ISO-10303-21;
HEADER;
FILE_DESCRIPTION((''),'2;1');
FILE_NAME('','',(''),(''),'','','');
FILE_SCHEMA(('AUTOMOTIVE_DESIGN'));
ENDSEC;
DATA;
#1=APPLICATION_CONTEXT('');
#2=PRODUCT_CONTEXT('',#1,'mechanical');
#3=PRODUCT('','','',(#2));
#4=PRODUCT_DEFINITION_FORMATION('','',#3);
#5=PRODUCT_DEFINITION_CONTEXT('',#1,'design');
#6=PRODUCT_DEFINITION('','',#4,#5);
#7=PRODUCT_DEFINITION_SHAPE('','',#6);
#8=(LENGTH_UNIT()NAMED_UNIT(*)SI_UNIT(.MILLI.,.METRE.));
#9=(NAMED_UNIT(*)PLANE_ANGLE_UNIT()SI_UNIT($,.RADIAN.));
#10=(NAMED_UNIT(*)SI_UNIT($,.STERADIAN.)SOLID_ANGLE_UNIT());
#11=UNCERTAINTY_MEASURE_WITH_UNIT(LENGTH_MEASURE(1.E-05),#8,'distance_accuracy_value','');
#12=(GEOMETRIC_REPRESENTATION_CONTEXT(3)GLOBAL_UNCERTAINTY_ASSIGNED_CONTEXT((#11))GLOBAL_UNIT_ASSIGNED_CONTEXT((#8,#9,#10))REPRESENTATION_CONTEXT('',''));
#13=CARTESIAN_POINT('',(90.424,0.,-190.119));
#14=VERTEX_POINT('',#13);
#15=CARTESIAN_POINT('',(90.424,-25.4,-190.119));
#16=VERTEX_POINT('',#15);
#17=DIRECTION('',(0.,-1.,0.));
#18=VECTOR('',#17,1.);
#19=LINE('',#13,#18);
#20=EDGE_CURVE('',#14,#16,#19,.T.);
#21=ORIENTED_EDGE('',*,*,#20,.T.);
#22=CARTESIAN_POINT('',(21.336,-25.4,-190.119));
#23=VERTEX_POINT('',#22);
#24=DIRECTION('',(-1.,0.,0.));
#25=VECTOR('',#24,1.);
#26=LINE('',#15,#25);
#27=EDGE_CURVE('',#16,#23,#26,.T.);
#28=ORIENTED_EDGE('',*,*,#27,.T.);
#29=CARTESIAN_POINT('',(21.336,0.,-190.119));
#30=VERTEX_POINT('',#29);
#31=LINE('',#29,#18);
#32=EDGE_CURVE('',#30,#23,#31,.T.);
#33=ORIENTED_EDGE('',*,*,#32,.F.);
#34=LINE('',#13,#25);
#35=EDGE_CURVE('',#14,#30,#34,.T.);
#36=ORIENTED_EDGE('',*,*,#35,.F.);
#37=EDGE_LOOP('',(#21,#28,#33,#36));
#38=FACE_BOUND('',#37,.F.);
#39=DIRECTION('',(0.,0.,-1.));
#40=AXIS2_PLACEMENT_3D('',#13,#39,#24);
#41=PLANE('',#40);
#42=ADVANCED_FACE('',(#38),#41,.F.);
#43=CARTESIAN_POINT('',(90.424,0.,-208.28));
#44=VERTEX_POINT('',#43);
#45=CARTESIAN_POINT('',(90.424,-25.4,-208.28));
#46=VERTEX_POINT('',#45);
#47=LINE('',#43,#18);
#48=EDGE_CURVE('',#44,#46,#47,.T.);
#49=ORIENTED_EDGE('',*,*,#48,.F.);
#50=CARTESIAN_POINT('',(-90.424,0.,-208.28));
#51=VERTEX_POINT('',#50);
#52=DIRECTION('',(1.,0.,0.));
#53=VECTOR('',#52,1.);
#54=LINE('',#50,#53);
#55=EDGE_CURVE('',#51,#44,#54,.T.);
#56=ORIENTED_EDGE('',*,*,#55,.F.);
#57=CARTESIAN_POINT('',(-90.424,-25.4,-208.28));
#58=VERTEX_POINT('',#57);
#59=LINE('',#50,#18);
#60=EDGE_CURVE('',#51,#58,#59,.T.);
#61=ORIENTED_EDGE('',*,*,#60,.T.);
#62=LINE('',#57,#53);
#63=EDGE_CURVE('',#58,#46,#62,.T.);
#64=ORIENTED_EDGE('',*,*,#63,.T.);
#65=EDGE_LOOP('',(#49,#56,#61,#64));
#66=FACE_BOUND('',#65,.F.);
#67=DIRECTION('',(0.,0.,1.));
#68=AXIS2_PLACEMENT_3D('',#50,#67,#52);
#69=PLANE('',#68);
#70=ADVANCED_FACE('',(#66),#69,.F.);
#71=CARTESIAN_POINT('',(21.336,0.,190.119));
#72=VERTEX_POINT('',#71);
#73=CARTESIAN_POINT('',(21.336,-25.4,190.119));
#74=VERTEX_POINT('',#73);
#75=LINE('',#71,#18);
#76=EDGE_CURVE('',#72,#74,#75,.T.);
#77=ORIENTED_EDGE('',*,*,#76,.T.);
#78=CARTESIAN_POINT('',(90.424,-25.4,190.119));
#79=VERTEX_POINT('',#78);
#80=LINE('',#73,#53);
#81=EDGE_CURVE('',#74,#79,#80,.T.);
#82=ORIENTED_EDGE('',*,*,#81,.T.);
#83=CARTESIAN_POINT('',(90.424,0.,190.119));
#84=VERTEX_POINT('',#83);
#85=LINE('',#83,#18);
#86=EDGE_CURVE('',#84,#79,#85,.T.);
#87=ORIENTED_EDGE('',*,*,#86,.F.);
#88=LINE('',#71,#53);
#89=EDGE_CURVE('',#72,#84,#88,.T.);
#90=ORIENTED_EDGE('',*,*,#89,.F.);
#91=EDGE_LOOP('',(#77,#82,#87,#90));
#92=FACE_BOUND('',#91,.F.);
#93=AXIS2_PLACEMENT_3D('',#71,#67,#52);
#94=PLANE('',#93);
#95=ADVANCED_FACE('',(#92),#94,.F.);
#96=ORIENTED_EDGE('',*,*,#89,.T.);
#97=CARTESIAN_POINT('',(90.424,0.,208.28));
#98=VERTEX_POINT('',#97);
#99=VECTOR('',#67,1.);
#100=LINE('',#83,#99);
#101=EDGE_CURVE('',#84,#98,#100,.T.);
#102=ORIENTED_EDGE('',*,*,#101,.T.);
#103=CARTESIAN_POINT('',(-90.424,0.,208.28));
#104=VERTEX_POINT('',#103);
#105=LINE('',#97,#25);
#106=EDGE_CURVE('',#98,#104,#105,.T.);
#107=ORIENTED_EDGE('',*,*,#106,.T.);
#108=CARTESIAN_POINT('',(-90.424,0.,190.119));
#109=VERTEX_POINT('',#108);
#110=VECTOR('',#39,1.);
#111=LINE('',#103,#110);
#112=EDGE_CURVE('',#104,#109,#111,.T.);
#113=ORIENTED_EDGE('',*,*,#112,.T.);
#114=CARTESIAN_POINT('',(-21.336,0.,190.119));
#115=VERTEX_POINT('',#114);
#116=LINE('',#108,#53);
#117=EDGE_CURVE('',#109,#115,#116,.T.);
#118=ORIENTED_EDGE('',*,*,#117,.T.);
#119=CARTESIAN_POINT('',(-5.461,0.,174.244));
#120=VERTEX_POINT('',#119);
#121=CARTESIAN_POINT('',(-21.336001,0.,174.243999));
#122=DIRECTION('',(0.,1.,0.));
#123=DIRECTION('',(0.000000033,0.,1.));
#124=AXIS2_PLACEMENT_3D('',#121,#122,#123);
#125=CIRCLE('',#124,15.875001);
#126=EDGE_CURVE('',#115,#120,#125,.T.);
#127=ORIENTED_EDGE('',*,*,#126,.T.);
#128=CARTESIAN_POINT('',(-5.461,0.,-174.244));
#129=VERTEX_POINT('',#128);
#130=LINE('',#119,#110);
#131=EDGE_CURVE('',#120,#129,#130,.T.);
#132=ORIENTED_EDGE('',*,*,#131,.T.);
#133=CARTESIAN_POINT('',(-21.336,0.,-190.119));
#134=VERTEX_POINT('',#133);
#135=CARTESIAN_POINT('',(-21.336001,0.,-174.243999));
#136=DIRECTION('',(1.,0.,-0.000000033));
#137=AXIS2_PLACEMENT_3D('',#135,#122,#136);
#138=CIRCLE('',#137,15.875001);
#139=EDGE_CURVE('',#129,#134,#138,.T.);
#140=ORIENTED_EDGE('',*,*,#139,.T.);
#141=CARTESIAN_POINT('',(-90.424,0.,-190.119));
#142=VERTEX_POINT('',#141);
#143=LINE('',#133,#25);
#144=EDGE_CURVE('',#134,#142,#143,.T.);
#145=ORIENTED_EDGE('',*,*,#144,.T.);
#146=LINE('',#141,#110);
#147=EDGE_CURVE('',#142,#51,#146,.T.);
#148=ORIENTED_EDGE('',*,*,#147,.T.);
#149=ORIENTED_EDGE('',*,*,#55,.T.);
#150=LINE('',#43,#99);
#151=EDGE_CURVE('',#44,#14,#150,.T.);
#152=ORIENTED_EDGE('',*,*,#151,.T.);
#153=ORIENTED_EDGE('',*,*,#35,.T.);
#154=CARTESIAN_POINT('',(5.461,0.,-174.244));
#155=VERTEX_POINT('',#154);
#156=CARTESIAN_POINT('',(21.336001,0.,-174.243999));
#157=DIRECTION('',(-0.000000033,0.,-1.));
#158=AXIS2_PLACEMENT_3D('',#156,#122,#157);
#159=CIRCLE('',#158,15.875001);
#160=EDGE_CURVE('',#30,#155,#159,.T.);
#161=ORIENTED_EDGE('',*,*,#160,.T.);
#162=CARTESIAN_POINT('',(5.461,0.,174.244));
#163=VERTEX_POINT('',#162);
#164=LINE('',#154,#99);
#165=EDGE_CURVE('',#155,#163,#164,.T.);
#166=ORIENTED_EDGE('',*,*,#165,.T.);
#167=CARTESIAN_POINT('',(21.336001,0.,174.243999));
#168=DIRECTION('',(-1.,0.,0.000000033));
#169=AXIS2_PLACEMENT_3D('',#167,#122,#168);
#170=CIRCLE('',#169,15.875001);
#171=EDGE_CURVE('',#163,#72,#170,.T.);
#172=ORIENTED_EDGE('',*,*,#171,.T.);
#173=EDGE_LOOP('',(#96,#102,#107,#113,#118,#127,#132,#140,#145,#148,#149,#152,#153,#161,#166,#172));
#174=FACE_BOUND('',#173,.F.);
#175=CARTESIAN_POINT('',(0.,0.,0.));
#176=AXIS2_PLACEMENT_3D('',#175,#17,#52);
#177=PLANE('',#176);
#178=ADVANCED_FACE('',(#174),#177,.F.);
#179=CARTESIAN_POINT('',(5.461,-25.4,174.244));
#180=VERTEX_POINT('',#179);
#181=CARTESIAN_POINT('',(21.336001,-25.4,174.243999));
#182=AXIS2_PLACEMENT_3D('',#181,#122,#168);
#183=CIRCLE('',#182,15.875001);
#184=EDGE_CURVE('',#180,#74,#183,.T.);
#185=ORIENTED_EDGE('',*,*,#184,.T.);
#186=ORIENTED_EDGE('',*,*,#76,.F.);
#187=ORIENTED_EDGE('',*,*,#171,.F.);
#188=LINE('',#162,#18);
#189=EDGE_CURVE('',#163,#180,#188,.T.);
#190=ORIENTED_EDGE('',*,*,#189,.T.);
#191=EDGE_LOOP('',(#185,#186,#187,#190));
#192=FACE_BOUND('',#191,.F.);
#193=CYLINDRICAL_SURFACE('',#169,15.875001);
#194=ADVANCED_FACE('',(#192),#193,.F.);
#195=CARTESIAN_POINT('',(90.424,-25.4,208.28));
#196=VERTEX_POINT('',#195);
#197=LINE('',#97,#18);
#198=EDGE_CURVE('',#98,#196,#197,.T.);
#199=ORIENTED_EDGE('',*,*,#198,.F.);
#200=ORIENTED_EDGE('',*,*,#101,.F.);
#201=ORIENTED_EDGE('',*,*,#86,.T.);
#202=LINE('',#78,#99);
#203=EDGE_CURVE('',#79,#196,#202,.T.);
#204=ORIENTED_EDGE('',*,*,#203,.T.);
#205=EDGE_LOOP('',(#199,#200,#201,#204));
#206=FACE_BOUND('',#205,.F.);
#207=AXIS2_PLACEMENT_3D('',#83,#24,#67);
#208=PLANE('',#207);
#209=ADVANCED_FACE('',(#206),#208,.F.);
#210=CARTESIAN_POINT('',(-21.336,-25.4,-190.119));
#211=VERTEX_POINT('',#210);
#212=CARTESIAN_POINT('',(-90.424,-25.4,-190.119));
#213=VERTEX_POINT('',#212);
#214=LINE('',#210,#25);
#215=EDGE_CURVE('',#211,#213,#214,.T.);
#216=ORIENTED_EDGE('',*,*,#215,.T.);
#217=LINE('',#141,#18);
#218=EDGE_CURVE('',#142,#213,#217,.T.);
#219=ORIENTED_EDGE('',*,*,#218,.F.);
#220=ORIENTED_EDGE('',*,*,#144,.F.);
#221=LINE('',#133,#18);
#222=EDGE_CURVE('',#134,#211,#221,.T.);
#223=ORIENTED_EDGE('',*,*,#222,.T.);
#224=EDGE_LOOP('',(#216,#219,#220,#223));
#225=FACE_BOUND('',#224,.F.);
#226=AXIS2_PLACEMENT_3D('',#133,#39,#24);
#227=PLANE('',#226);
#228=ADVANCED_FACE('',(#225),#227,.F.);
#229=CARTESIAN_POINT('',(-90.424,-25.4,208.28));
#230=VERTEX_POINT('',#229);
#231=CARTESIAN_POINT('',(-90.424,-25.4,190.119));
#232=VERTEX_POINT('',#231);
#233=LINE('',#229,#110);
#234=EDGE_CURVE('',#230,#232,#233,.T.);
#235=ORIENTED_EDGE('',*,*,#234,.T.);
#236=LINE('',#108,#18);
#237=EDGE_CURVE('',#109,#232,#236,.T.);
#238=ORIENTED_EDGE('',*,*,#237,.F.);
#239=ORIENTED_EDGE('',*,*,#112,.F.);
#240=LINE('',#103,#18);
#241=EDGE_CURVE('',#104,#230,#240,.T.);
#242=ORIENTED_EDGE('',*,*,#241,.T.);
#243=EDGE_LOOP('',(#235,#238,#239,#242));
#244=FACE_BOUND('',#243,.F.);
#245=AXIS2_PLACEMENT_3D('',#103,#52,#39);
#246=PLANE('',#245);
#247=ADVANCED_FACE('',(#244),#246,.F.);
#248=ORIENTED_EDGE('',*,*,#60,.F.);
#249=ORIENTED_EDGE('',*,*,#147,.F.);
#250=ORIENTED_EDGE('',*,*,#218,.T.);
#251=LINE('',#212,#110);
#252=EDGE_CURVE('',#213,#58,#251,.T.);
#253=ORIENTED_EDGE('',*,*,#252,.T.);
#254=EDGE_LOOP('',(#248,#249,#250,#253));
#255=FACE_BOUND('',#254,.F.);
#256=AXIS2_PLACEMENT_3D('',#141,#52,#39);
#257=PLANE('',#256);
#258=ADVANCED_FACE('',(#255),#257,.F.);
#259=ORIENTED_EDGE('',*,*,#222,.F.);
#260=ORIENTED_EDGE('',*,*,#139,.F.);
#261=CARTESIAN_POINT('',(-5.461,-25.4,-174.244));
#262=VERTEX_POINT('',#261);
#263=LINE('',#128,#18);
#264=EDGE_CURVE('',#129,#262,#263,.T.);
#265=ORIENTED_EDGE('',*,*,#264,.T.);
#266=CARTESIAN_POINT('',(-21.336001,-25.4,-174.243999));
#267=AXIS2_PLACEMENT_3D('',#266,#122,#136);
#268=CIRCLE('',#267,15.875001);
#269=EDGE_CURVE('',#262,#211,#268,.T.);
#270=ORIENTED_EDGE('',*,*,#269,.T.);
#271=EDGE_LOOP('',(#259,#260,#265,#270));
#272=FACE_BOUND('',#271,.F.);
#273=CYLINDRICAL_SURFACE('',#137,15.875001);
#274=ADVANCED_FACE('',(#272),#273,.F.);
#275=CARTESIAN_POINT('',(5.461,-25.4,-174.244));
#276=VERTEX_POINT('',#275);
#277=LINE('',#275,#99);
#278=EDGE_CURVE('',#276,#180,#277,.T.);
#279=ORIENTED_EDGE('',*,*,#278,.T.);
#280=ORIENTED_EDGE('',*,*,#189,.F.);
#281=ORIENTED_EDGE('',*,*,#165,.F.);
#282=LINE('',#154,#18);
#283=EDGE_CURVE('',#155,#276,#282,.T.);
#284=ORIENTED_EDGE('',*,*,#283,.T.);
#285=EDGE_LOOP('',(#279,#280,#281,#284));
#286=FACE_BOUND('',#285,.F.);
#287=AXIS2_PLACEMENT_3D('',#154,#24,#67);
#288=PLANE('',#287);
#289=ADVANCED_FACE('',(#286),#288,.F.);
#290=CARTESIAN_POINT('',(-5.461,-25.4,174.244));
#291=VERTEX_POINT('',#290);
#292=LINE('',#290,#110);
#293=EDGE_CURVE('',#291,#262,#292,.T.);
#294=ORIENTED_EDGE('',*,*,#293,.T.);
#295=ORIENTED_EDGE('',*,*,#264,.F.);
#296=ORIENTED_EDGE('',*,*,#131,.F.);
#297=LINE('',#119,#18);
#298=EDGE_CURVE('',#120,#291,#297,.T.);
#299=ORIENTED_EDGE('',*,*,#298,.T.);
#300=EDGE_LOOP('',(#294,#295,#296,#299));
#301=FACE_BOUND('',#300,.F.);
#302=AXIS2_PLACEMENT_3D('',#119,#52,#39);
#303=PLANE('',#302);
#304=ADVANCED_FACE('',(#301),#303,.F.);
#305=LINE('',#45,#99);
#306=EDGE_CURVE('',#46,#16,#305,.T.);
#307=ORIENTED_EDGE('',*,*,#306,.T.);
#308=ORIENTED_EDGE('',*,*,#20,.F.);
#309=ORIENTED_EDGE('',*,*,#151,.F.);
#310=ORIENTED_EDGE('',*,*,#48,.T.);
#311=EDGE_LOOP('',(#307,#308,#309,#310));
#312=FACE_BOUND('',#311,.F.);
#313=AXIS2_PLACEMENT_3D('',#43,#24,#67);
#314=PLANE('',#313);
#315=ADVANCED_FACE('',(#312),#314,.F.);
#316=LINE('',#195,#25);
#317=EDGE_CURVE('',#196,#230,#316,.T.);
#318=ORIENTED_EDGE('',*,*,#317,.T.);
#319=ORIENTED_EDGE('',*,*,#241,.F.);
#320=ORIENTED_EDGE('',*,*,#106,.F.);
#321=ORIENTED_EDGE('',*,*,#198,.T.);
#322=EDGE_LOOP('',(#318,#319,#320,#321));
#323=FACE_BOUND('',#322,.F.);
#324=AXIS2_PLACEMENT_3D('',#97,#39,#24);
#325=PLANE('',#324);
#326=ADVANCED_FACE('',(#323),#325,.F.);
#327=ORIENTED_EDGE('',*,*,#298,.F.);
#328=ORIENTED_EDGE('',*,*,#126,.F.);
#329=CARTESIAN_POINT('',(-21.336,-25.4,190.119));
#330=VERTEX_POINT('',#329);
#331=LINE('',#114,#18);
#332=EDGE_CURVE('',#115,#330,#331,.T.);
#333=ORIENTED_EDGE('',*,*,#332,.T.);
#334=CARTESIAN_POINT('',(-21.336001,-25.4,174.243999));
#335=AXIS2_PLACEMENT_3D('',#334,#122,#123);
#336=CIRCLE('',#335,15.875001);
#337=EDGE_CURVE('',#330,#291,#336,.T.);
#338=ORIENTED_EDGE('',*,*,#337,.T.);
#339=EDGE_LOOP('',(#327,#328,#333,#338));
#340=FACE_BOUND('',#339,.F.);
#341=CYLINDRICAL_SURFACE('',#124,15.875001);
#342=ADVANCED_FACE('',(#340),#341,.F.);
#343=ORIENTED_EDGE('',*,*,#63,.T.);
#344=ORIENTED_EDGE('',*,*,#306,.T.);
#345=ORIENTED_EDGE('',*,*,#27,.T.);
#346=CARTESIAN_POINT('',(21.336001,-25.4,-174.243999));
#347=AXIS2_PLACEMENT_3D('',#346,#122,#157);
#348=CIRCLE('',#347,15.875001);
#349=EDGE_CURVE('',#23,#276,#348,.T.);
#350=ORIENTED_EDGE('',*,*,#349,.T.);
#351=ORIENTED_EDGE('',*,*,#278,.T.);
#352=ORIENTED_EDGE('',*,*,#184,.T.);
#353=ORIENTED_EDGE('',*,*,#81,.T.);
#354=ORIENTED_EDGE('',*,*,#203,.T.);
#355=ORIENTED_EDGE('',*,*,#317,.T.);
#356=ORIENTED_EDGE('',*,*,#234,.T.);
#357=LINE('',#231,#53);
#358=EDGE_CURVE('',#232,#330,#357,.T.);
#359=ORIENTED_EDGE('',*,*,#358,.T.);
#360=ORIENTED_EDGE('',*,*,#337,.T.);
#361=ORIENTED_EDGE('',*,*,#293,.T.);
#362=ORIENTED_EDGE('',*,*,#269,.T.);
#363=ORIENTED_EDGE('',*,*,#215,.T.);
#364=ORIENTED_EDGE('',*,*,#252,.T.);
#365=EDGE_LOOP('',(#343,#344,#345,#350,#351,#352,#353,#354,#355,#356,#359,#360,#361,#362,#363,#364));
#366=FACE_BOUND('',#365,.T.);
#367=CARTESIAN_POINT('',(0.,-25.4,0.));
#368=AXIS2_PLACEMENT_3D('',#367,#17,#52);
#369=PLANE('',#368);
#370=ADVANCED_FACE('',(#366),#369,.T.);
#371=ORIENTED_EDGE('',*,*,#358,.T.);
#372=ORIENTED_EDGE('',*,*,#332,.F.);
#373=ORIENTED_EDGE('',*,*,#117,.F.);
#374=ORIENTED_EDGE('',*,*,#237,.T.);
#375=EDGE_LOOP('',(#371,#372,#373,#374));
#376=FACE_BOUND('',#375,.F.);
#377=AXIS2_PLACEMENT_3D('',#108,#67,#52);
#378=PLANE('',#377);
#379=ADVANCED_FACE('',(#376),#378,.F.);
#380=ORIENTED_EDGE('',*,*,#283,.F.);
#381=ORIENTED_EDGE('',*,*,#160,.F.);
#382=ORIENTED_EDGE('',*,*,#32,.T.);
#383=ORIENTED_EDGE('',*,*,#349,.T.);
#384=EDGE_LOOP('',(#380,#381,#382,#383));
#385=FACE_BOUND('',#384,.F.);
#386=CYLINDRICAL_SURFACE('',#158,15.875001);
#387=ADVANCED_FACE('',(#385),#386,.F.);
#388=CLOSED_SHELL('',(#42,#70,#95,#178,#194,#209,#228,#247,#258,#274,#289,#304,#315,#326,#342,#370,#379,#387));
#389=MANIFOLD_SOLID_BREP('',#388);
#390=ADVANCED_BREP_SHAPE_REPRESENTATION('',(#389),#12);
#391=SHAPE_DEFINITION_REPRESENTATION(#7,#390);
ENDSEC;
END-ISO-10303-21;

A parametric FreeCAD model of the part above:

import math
import FreeCAD as App
import Part
import Sketcher
from FreeCAD import Vector
Q = App.Units.Quantity

doc = App.newDocument("Part")
params = doc.addObject("Spreadsheet::Sheet", "Params")
for row, (alias, value) in enumerate([
    ("sketch1_radius", "0.625 in"),
    ("sketch1_width", "7.12 in"),
    ("sketch1_width2", "2.72 in"),
    ("sketch1_height", "13.72 in"),
    ("pad1_length", "1 in"),
], start=1):
    params.set(f"A{row}", alias)
    params.set(f"B{row}", "=" + value)
    params.setAlias(f"B{row}", alias)

body = doc.addObject("PartDesign::Body", "Body")

sketch1 = body.newObject("Sketcher::SketchObject", "Sketch")
sketch1.AttachmentSupport = (doc.getObject("XZ_Plane"), [""])
sketch1.MapMode = "FlatFace"
sketch1.addGeometry([
    Part.LineSegment(Vector(90, 208, 0), Vector(-90, 208, 0)),
    Part.LineSegment(Vector(-90, 208, 0), Vector(-90, 190, 0)),
    Part.LineSegment(Vector(-90, 190, 0), Vector(-21, 190, 0)),
    Part.ArcOfCircle(Part.Circle(Vector(-21, 174, 0), Vector(0, 0, 1), 16), math.radians(0), math.radians(90)),
    Part.LineSegment(Vector(-5, 174, 0), Vector(-5, -174, 0)),
    Part.ArcOfCircle(Part.Circle(Vector(-21, -174, 0), Vector(0, 0, 1), 16), math.radians(-90), math.radians(0)),
    Part.LineSegment(Vector(-21, -190, 0), Vector(-90, -190, 0)),
    Part.LineSegment(Vector(-90, -190, 0), Vector(-90, -208, 0)),
    Part.LineSegment(Vector(-90, -208, 0), Vector(90, -208, 0)),
    Part.LineSegment(Vector(90, -208, 0), Vector(90, -190, 0)),
    Part.LineSegment(Vector(90, -190, 0), Vector(21, -190, 0)),
    Part.ArcOfCircle(Part.Circle(Vector(21, -174, 0), Vector(0, 0, 1), 16), math.radians(-180), math.radians(-90)),
    Part.LineSegment(Vector(5, -174, 0), Vector(5, 174, 0)),
    Part.ArcOfCircle(Part.Circle(Vector(21, 174, 0), Vector(0, 0, 1), 16), math.radians(90), math.radians(180)),
    Part.LineSegment(Vector(21, 190, 0), Vector(90, 190, 0)),
    Part.LineSegment(Vector(90, 190, 0), Vector(90, 208, 0)),
], False)
sketch1.addConstraint([
    Sketcher.Constraint("Coincident", 0, 2, 1, 1),
    Sketcher.Constraint("Coincident", 1, 2, 2, 1),
    Sketcher.Constraint("Tangent", 2, 2, 3, 2),
    Sketcher.Constraint("Tangent", 3, 1, 4, 1),
    Sketcher.Constraint("Tangent", 4, 2, 5, 2),
    Sketcher.Constraint("Tangent", 5, 1, 6, 1),
    Sketcher.Constraint("Coincident", 6, 2, 7, 1),
    Sketcher.Constraint("Coincident", 7, 2, 8, 1),
    Sketcher.Constraint("Coincident", 8, 2, 9, 1),
    Sketcher.Constraint("Coincident", 9, 2, 10, 1),
    Sketcher.Constraint("Tangent", 10, 2, 11, 2),
    Sketcher.Constraint("Tangent", 11, 1, 12, 1),
    Sketcher.Constraint("Tangent", 12, 2, 13, 2),
    Sketcher.Constraint("Tangent", 13, 1, 14, 1),
    Sketcher.Constraint("Coincident", 14, 2, 15, 1),
    Sketcher.Constraint("Coincident", 15, 2, 0, 1),
    Sketcher.Constraint("Horizontal", 0),
    Sketcher.Constraint("Vertical", 1),
    Sketcher.Constraint("Horizontal", 2),
    Sketcher.Constraint("Vertical", 4),
    Sketcher.Constraint("Horizontal", 6),
    Sketcher.Constraint("Vertical", 7),
    Sketcher.Constraint("Horizontal", 8),
    Sketcher.Constraint("Vertical", 9),
    Sketcher.Constraint("Horizontal", 10),
    Sketcher.Constraint("Vertical", 12),
    Sketcher.Constraint("Horizontal", 14),
    Sketcher.Constraint("Vertical", 15),
    Sketcher.Constraint("Equal", 3, 5),
    Sketcher.Constraint("Equal", 5, 11),
    Sketcher.Constraint("Equal", 11, 13),
    Sketcher.Constraint("Symmetric", 3, 3, 11, 3, -1, 1),
    Sketcher.Constraint("Symmetric", 0, 2, 8, 2, -1, 1),
    Sketcher.Constraint("Symmetric", 6, 2, 14, 2, -1, 1),
    Sketcher.Constraint("Symmetric", 6, 2, 9, 2, -2),
    Sketcher.Constraint("Radius", 3, Q("0.625 in")),
    Sketcher.Constraint("DistanceX", 0, 2, 0, 1, Q("7.12 in")),
    Sketcher.Constraint("DistanceX", 2, 1, 2, 2, Q("2.72 in")),
    Sketcher.Constraint("DistanceY", 4, 2, 4, 1, Q("13.72 in")),
    Sketcher.Constraint("DistanceY", -1, 1, 0, 2, Q("8.2 in")),
])
sketch1.setExpression("Constraints[35]", "Params.sketch1_radius")
sketch1.setExpression("Constraints[36]", "Params.sketch1_width")
sketch1.setExpression("Constraints[37]", "Params.sketch1_width2")
sketch1.setExpression("Constraints[38]", "Params.sketch1_height")
pad1 = body.newObject("PartDesign::Pad", "Pad")
pad1.Profile = sketch1
pad1.setExpression("Length", "Params.pad1_length")

doc.recompute()
